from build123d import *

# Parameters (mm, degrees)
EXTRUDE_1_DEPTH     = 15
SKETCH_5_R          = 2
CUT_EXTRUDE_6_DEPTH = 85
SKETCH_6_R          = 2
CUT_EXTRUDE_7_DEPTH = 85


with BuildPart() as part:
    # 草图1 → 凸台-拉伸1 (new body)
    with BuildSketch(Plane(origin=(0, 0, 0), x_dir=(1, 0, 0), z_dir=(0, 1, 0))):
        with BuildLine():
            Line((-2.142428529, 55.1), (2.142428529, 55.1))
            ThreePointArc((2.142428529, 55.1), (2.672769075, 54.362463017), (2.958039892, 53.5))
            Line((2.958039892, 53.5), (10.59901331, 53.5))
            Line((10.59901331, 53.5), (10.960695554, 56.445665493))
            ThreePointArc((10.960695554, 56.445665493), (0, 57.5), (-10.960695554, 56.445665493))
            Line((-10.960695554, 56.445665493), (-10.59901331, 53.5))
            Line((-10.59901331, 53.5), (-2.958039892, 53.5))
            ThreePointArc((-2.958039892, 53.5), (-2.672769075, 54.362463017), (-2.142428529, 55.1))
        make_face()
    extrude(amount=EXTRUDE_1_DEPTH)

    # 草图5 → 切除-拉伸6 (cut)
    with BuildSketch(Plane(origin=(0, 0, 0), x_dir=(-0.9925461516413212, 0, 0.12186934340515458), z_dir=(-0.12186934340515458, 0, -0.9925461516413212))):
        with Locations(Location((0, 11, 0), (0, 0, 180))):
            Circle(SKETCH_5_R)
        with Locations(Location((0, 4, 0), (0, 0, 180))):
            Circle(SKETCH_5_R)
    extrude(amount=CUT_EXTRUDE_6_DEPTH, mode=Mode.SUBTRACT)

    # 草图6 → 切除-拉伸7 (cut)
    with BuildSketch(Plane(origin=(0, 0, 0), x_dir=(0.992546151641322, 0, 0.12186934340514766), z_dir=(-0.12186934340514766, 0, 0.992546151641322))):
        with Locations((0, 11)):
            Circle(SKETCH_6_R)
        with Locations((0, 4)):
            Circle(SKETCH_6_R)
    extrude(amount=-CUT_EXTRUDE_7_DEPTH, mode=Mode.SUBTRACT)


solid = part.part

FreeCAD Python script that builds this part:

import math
import FreeCAD as App
import Part
import Sketcher
from FreeCAD import Vector
Q = App.Units.Quantity

doc = App.newDocument("Part")
params = doc.addObject("Spreadsheet::Sheet", "Params")
for row, (alias, value) in enumerate([
    ("sketch1_radius", "3 mm"),
    ("sketch1_radius2", "57.5 mm"),
    ("pad1_length", "15 mm"),
    ("sketch2_diameter", "4 mm"),
    ("pocket1_length", "85 mm"),
    ("sketch3_diameter", "4 mm"),
    ("pocket2_length", "85 mm"),
], start=1):
    params.set(f"A{row}", alias)
    params.set(f"B{row}", "=" + value)
    params.setAlias(f"B{row}", alias)

body = doc.addObject("PartDesign::Body", "Body")

sketch1 = body.newObject("Sketcher::SketchObject", "Sketch")
sketch1.AttachmentSupport = (doc.getObject("XZ_Plane"), [""])
sketch1.MapMode = "FlatFace"
sketch1.addGeometry(Part.LineSegment(Vector(-2.142429, -55.1, 0), Vector(2.142429, -55.1, 0)), False)
sketch1.addGeometry(Part.ArcOfCircle(Part.Circle(Vector(0, -53, 0), Vector(0, 0, 1), 3), math.radians(-44.427004), math.radians(-9.594068)), False)
sketch1.addGeometry(Part.LineSegment(Vector(2.95804, -53.5, 0), Vector(10.599013, -53.5, 0)), False)
sketch1.addGeometry(Part.LineSegment(Vector(10.599013, -53.5, 0), Vector(10.960696, -56.445665, 0)), False)
sketch1.addGeometry(Part.ArcOfCircle(Part.Circle(Vector(0, 0, 0), Vector(0, 0, 1), 57.5), math.radians(-100.989015), math.radians(-79.010985)), False)
sketch1.addGeometry(Part.LineSegment(Vector(-10.960696, -56.445665, 0), Vector(-10.599013, -53.5, 0)), False)
sketch1.addGeometry(Part.LineSegment(Vector(-10.599013, -53.5, 0), Vector(-2.95804, -53.5, 0)), False)
sketch1.addGeometry(Part.ArcOfCircle(Part.Circle(Vector(0, -53, 0), Vector(0, 0, 1), 3), math.radians(-170.405932), math.radians(-135.572996)), False)
sketch1.addConstraint(Sketcher.Constraint("Coincident", 0, 2, 1, 1))
sketch1.addConstraint(Sketcher.Constraint("Coincident", 1, 2, 2, 1))
sketch1.addConstraint(Sketcher.Constraint("Coincident", 2, 2, 3, 1))
sketch1.addConstraint(Sketcher.Constraint("Coincident", 3, 2, 4, 2))
sketch1.addConstraint(Sketcher.Constraint("Coincident", 4, 1, 5, 1))
sketch1.addConstraint(Sketcher.Constraint("Coincident", 5, 2, 6, 1))
sketch1.addConstraint(Sketcher.Constraint("Coincident", 6, 2, 7, 1))
sketch1.addConstraint(Sketcher.Constraint("Coincident", 7, 2, 0, 1))
sketch1.addConstraint(Sketcher.Constraint("Horizontal", 0))
sketch1.addConstraint(Sketcher.Constraint("Horizontal", 2))
sketch1.addConstraint(Sketcher.Constraint("Horizontal", 6))
sketch1.addConstraint(Sketcher.Constraint("Coincident", 4, 3, -1, 1))
sketch1.addConstraint(Sketcher.Constraint("Coincident", 7, 3, 1, 3))
sketch1.addConstraint(Sketcher.Constraint("Equal", 1, 7))
sketch1.addConstraint(Sketcher.Constraint("Symmetric", 2, 2, 5, 2, -2))
sketch1.addConstraint(Sketcher.Constraint("PointOnObject", 1, 3, -2))
sketch1.addConstraint(Sketcher.Constraint("Horizontal", 3, 2, 4, 1))
sketch1.addConstraint(Sketcher.Constraint("Radius", 1, 3.0))
sketch1.addConstraint(Sketcher.Constraint("Radius", 4, 57.5))
sketch1.addConstraint(Sketcher.Constraint("Angle", 3, Q("-83 deg")))
sketch1.addConstraint(Sketcher.Constraint("DistanceY", 1, 3, -1, 1, 53.0))
sketch1.addConstraint(Sketcher.Constraint("DistanceY", 0, 2, -1, 1, 55.1))
sketch1.addConstraint(Sketcher.Constraint("DistanceY", 1, 2, -1, 1, 53.5))
sketch1.addConstraint(Sketcher.Constraint("DistanceX", 2, 1, 2, 2, 7.640973))
sketch1.setExpression("Constraints[17]", "Params.sketch1_radius")
sketch1.setExpression("Constraints[18]", "Params.sketch1_radius2")
pad1 = body.newObject("PartDesign::Pad", "Pad")
pad1.Profile = sketch1
pad1.setExpression("Length", "Params.pad1_length")
pad1.Reversed = True

sketch2 = body.newObject("Sketcher::SketchObject", "Sketch001")
sketch2.Placement = App.Placement(Vector(0, 0, 0), App.Rotation(Vector(-0.992546152, 0, 0.121869343), Vector(0, 1.000000001, 0), Vector(-0.121869343, 0, -0.992546152), "ZXY"))
sketch2.addGeometry(Part.Circle(Vector(0, 11, 0), Vector(0, 0, 1), 2), False)
sketch2.addGeometry(Part.Circle(Vector(0, 4, 0), Vector(0, 0, 1), 2), False)
sketch2.addConstraint(Sketcher.Constraint("Equal", 0, 1))
sketch2.addConstraint(Sketcher.Constraint("PointOnObject", 0, 3, -2))
sketch2.addConstraint(Sketcher.Constraint("PointOnObject", 1, 3, -2))
sketch2.addConstraint(Sketcher.Constraint("Diameter", 0, 4.0))
sketch2.addConstraint(Sketcher.Constraint("DistanceY", -1, 1, 0, 3, 11.0))
sketch2.addConstraint(Sketcher.Constraint("DistanceY", -1, 1, 1, 3, 4.0))
sketch2.setExpression("Constraints[3]", "Params.sketch2_diameter")
pocket1 = body.newObject("PartDesign::Pocket", "Pocket")
pocket1.Profile = sketch2
pocket1.setExpression("Length", "Params.pocket1_length")
pocket1.Reversed = True

sketch3 = body.newObject("Sketcher::SketchObject", "Sketch002")
sketch3.Placement = App.Placement(Vector(0, 0, 0), App.Rotation(Vector(0.992546152, 0, 0.121869343), Vector(0, 1.000000001, 0), Vector(-0.121869343, 0, 0.992546152), "ZXY"))
sketch3.addGeometry(Part.Circle(Vector(0, 11, 0), Vector(0, 0, 1), 2), False)
sketch3.addGeometry(Part.Circle(Vector(0, 4, 0), Vector(0, 0, 1), 2), False)
sketch3.addConstraint(Sketcher.Constraint("Equal", 0, 1))
sketch3.addConstraint(Sketcher.Constraint("PointOnObject", 0, 3, -2))
sketch3.addConstraint(Sketcher.Constraint("PointOnObject", 1, 3, -2))
sketch3.addConstraint(Sketcher.Constraint("Diameter", 0, 4.0))
sketch3.addConstraint(Sketcher.Constraint("DistanceY", -1, 1, 0, 3, 11.0))
sketch3.addConstraint(Sketcher.Constraint("DistanceY", -1, 1, 1, 3, 4.0))
sketch3.setExpression("Constraints[3]", "Params.sketch3_diameter")
pocket2 = body.newObject("PartDesign::Pocket", "Pocket001")
pocket2.Profile = sketch3
pocket2.setExpression("Length", "Params.pocket2_length")

doc.recompute()
